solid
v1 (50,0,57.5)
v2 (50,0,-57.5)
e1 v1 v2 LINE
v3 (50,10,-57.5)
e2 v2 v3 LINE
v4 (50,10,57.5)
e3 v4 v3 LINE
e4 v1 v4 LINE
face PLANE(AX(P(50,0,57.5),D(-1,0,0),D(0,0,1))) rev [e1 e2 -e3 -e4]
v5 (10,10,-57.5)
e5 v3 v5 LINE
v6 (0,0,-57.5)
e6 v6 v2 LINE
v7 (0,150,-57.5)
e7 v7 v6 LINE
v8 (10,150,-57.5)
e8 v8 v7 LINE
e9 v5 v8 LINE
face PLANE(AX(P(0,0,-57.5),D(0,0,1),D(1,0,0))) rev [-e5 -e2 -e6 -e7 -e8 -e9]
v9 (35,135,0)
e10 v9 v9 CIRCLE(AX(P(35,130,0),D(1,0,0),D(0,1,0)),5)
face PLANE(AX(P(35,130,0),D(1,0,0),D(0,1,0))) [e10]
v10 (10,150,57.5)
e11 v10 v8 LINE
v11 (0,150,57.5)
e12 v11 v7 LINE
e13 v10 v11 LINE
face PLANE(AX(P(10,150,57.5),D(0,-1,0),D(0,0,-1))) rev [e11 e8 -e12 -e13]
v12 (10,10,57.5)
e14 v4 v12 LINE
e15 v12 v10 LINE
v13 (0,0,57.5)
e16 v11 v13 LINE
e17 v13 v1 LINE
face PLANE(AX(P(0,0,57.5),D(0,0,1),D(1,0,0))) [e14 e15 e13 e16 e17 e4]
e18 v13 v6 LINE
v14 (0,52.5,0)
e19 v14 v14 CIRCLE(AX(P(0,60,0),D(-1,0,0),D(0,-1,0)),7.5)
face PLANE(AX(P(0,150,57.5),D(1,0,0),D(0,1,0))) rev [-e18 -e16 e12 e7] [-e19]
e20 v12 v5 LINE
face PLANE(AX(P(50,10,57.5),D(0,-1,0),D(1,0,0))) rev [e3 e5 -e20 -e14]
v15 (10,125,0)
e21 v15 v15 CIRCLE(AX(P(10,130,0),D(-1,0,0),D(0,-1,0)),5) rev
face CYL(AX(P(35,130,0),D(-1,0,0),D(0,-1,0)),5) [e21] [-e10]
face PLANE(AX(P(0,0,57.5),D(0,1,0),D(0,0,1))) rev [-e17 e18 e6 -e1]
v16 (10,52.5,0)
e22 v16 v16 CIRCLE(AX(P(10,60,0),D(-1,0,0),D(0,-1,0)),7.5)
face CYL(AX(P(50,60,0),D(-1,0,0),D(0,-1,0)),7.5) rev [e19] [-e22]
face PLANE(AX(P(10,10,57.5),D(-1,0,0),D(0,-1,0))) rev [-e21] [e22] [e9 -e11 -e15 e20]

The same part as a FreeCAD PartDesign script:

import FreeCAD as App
import Part
import Sketcher

V = App.Vector
Q = App.Units.Quantity

doc = App.newDocument("Part")
body = doc.addObject("PartDesign::Body", "Body")

sketch1 = body.newObject("Sketcher::SketchObject", "Sketch")
sketch1.AttachmentSupport = (doc.getObject("XY_Plane"), [""])
sketch1.MapMode = "FlatFace"
sketch1.addGeometry([
    Part.LineSegment(V(0, 150, 0), V(0, 0, 0)),
    Part.LineSegment(V(0, 0, 0), V(50, 0, 0)),
    Part.LineSegment(V(50, 0, 0), V(50, 10, 0)),
    Part.LineSegment(V(50, 10, 0), V(10, 10, 0)),
    Part.LineSegment(V(10, 10, 0), V(10, 150, 0)),
    Part.LineSegment(V(10, 150, 0), V(0, 150, 0)),
], False)
sketch1.addConstraint([
    Sketcher.Constraint("Coincident", 0, 2, 1, 1),
    Sketcher.Constraint("Coincident", 1, 2, 2, 1),
    Sketcher.Constraint("Coincident", 2, 2, 3, 1),
    Sketcher.Constraint("Coincident", 3, 2, 4, 1),
    Sketcher.Constraint("Coincident", 4, 2, 5, 1),
    Sketcher.Constraint("Coincident", 5, 2, 0, 1),
    Sketcher.Constraint("Vertical", 0),
    Sketcher.Constraint("Horizontal", 1),
    Sketcher.Constraint("Vertical", 2),
    Sketcher.Constraint("Horizontal", 3),
    Sketcher.Constraint("Vertical", 4),
    Sketcher.Constraint("Horizontal", 5),
    Sketcher.Constraint("Coincident", 0, 2, -1, 1),
    Sketcher.Constraint("Equal", 5, 2),
    Sketcher.Constraint("DistanceX", 1, 1, 1, 2, Q("50 mm")),
    Sketcher.Constraint("DistanceX", 3, 2, 3, 1, Q("40 mm")),
    Sketcher.Constraint("DistanceY", 0, 2, 0, 1, Q("150 mm")),
])
pad1 = body.newObject("PartDesign::Pad", "Pad")
pad1.Profile = sketch1
pad1.Length = 115
pad1.Midplane = True

sketch2 = body.newObject("Sketcher::SketchObject", "Sketch001")
sketch2.AttachmentSupport = (doc.getObject("YZ_Plane"), [""])
sketch2.MapMode = "FlatFace"
sketch2.addGeometry(Part.Circle(V(60, 0, 0), V(0, 0, 1), 7.5), False)
sketch2.addConstraint([
    Sketcher.Constraint("PointOnObject", 0, 3, -1),
    Sketcher.Constraint("Diameter", 0, Q("15 mm")),
    Sketcher.Constraint("DistanceX", -1, 1, 0, 3, Q("60 mm")),
])
pocket1 = body.newObject("PartDesign::Pocket", "Pocket")
pocket1.Profile = sketch2
pocket1.Type = "ThroughAll"
pocket1.Reversed = True

sketch3 = body.newObject("Sketcher::SketchObject", "Sketch002")
sketch3.AttachmentSupport = (doc.getObject("YZ_Plane"), [""])
sketch3.MapMode = "FlatFace"
sketch3.AttachmentOffset = App.Placement(V(0, 0, 10), App.Rotation())
sketch3.addGeometry(Part.Circle(V(130, 0, 0), V(0, 0, 1), 5), False)
sketch3.addConstraint([
    Sketcher.Constraint("PointOnObject", 0, 3, -1),
    Sketcher.Constraint("Diameter", 0, Q("10 mm")),
    Sketcher.Constraint("DistanceX", -1, 1, 0, 3, Q("130 mm")),
])
pad2 = body.newObject("PartDesign::Pad", "Pad001")
pad2.Profile = sketch3
pad2.Length = 25

doc.recompute()
